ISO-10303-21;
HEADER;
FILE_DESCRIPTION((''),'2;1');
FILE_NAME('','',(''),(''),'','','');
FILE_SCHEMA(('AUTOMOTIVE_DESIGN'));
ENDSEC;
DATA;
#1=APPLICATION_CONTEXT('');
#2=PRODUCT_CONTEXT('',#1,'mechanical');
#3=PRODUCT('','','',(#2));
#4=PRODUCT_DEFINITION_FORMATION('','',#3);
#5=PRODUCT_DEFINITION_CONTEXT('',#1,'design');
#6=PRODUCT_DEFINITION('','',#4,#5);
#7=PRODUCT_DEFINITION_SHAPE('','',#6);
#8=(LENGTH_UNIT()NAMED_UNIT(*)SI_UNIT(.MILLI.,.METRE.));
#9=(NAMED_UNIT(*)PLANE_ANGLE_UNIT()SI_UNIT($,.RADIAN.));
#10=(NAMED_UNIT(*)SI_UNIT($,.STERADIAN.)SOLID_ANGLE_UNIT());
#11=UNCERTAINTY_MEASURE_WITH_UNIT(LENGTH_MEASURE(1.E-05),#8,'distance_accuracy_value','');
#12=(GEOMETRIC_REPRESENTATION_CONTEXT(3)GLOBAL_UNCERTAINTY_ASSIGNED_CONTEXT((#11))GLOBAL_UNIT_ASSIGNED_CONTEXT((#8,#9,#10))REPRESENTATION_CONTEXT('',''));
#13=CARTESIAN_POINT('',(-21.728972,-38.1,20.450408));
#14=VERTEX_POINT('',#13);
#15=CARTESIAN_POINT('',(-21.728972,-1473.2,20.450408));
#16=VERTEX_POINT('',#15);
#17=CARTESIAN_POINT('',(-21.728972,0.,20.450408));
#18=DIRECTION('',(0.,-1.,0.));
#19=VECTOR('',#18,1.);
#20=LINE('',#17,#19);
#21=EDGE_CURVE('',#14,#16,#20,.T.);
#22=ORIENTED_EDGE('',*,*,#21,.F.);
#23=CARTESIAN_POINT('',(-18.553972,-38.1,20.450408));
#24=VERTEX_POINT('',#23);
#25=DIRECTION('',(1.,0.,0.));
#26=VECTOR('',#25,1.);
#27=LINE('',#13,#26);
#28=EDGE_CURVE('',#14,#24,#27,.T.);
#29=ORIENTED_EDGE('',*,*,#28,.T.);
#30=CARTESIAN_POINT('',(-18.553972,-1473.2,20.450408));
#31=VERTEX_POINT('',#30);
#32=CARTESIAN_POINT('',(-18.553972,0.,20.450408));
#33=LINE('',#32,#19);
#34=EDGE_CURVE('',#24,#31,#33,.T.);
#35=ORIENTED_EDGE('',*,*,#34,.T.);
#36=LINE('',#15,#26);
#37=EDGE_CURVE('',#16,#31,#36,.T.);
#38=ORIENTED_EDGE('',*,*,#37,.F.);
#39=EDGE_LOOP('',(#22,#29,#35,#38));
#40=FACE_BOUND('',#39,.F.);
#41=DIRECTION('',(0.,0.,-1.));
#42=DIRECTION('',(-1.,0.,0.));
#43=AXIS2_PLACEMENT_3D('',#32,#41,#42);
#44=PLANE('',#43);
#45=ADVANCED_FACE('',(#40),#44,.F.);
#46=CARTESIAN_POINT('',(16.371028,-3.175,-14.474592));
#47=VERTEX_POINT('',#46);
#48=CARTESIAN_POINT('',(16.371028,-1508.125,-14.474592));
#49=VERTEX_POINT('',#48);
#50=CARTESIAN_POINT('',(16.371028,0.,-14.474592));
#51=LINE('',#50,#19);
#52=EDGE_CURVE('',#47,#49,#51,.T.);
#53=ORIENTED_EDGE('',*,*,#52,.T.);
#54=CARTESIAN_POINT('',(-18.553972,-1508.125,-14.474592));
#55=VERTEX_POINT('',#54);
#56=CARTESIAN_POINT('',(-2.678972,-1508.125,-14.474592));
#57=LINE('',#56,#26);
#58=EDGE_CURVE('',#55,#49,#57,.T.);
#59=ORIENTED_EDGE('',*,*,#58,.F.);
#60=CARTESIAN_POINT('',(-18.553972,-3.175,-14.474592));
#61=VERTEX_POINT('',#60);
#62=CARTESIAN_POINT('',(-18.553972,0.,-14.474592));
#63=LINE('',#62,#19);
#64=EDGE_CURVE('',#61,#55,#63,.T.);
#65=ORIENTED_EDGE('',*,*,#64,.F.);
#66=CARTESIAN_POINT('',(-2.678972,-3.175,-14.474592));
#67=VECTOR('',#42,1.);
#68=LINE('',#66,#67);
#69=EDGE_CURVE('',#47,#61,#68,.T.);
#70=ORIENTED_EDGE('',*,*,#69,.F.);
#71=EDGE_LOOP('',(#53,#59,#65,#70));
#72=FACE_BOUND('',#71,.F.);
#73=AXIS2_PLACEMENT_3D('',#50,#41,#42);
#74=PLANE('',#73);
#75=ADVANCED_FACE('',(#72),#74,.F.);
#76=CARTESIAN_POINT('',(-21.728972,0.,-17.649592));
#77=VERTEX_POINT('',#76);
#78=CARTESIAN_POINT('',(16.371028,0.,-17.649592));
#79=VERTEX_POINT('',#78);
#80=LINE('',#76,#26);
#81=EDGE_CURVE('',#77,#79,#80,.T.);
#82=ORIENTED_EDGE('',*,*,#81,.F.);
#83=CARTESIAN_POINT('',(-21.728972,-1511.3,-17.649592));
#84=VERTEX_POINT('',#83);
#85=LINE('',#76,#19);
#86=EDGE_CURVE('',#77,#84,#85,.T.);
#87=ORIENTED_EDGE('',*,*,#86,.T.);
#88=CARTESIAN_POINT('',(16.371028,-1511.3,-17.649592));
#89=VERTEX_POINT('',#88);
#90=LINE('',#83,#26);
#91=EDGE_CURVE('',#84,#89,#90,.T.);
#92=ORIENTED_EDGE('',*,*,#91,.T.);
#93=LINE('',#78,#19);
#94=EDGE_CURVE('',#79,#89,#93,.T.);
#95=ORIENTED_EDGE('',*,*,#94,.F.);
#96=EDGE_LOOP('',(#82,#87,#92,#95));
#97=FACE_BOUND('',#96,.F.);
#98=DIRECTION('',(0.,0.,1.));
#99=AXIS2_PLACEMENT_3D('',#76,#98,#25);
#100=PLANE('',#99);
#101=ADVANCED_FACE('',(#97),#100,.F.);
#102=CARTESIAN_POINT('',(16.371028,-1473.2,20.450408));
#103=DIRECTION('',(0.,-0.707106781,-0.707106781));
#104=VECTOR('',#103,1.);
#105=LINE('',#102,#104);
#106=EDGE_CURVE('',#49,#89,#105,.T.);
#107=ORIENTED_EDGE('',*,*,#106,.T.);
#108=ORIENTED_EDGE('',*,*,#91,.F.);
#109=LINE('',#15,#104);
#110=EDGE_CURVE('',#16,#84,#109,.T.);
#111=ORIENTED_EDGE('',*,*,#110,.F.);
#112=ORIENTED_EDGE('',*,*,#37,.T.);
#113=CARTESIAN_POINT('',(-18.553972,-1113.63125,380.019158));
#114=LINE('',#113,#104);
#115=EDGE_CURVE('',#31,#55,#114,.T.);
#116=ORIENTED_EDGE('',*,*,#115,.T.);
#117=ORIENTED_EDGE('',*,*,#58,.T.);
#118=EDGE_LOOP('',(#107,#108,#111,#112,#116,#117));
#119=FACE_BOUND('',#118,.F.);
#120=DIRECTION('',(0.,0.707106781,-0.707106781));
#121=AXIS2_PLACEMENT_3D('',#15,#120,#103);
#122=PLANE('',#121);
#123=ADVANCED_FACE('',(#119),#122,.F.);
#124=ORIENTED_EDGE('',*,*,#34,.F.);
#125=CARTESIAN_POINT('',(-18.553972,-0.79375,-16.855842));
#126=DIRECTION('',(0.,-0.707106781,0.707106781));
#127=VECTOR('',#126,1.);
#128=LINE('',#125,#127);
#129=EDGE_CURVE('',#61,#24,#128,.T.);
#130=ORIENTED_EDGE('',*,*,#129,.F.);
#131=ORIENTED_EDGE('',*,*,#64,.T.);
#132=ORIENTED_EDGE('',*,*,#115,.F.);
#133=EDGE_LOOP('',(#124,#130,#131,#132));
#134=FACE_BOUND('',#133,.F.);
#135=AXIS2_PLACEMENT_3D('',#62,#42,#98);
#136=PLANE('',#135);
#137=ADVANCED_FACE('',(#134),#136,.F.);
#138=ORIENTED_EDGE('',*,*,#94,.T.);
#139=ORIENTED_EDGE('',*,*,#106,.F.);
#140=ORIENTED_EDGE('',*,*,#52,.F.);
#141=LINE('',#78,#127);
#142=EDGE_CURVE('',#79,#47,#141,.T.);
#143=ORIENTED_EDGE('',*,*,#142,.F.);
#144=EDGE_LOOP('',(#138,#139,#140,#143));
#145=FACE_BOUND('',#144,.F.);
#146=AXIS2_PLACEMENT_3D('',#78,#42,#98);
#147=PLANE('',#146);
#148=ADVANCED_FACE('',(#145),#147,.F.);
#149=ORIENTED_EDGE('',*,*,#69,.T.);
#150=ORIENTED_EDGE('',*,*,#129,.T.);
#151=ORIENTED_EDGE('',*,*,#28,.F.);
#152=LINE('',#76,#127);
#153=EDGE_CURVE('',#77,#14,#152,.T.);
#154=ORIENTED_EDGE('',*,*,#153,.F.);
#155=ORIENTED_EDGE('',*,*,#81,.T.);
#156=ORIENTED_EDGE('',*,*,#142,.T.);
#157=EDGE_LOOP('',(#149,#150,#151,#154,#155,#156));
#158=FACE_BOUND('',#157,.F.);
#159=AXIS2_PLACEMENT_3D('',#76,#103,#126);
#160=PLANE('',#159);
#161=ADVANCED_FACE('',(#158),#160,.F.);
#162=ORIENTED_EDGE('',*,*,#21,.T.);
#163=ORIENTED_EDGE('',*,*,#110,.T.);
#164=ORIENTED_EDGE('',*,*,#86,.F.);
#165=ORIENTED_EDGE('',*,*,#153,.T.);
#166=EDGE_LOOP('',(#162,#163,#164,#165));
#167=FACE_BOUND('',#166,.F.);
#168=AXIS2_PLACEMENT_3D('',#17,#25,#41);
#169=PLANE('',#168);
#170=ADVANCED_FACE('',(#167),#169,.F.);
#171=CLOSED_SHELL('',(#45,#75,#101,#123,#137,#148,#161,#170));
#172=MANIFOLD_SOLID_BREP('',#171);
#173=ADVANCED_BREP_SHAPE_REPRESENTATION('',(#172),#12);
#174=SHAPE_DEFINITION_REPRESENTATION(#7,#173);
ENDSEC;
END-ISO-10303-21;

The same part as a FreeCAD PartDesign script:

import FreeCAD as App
import Part
import Sketcher

V = App.Vector
Q = App.Units.Quantity

doc = App.newDocument("Part")
body = doc.addObject("PartDesign::Body", "Body")

# Sketch on XZ plane
sketch1 = body.newObject("Sketcher::SketchObject", "Sketch")
sketch1.AttachmentSupport = (doc.getObject("XZ_Plane"), [""])
sketch1.MapMode = "FlatFace"
sketch1.addGeometry([
    Part.LineSegment(V(-18.6, 20.5, 0), V(-21.7, 20.5, 0)),  # 0
    Part.LineSegment(V(-21.7, 20.5, 0), V(-21.7, -17.6, 0)),  # 1
    Part.LineSegment(V(-21.7, -17.6, 0), V(16.4, -17.6, 0)),  # 2
    Part.LineSegment(V(16.4, -17.6, 0), V(16.4, -14.5, 0)),  # 3
    Part.LineSegment(V(16.4, -14.5, 0), V(-18.6, -14.5, 0)),  # 4
    Part.LineSegment(V(-18.6, -14.5, 0), V(-18.6, 20.5, 0)),  # 5
], False)
sketch1.addConstraint([
    Sketcher.Constraint("Coincident", 0, 2, 1, 1),
    Sketcher.Constraint("Coincident", 1, 2, 2, 1),
    Sketcher.Constraint("Coincident", 2, 2, 3, 1),
    Sketcher.Constraint("Coincident", 3, 2, 4, 1),
    Sketcher.Constraint("Coincident", 4, 2, 5, 1),
    Sketcher.Constraint("Coincident", 5, 2, 0, 1),
    Sketcher.Constraint("Horizontal", 0),
    Sketcher.Constraint("Vertical", 1),
    Sketcher.Constraint("Horizontal", 2),
    Sketcher.Constraint("Vertical", 3),
    Sketcher.Constraint("Horizontal", 4),
    Sketcher.Constraint("Vertical", 5),
    Sketcher.Constraint("Equal", 2, 1),
    Sketcher.Constraint("Equal", 0, 3),
    Sketcher.Constraint("DistanceX", 2, 1, 2, 2, Q("1.5 in")),
    Sketcher.Constraint("DistanceX", 0, 2, 0, 1, Q("0.125 in")),
    Sketcher.Constraint("DistanceX", 0, 2, -1, 1, 21.728972),
    Sketcher.Constraint("DistanceY", 1, 2, -1, 1, 17.649592),
])
pad1 = body.newObject("PartDesign::Pad", "Pad")
pad1.Profile = sketch1
pad1.Length = Q("59.5 in")

# Sketch on YZ plane
sketch2 = body.newObject("Sketcher::SketchObject", "Sketch001")
sketch2.AttachmentSupport = (doc.getObject("YZ_Plane"), [""])
sketch2.MapMode = "FlatFace"
sketch2.AttachmentOffset = App.Placement(V(0, 0, -21.728972), App.Rotation())
sketch2.addGeometry([
    Part.LineSegment(V(-1473, 20, 0), V(-1511, -18, 0)),  # 0
    Part.LineSegment(V(-1511, -18, 0), V(-1511, 20, 0)),  # 1
    Part.LineSegment(V(-1511, 20, 0), V(-1473, 20, 0)),  # 2
    Part.LineSegment(V(0, 20, 0), V(0, -18, 0)),  # 3
    Part.LineSegment(V(0, -18, 0), V(-38, 20, 0)),  # 4
    Part.LineSegment(V(-38, 20, 0), V(0, 20, 0)),  # 5
], False)
sketch2.addConstraint([
    Sketcher.Constraint("Coincident", 0, 2, 1, 1),
    Sketcher.Constraint("Coincident", 1, 2, 2, 1),
    Sketcher.Constraint("Coincident", 2, 2, 0, 1),
    Sketcher.Constraint("Coincident", 3, 2, 4, 1),
    Sketcher.Constraint("Coincident", 4, 2, 5, 1),
    Sketcher.Constraint("Coincident", 5, 2, 3, 1),
    Sketcher.Constraint("Vertical", 1),
    Sketcher.Constraint("Horizontal", 2),
    Sketcher.Constraint("Vertical", 3),
    Sketcher.Constraint("Horizontal", 5),
    Sketcher.Constraint("PointOnObject", 3, 2, -2),
    Sketcher.Constraint("Perpendicular", 0, 4),
    Sketcher.Constraint("Horizontal", 0, 2, 3, 2),
    Sketcher.Constraint("Horizontal", 2, 2, 4, 2),
    Sketcher.Constraint("Equal", 2, 5),
    Sketcher.Constraint("DistanceX", 2, 1, 2, 2, Q("1.5 in")),
    Sketcher.Constraint("DistanceX", 2, 2, -1, 1, Q("58 in")),
    Sketcher.Constraint("DistanceY", 0, 2, -1, 1, 17.649592),
])
pocket1 = body.newObject("PartDesign::Pocket", "Pocket")
pocket1.Profile = sketch2
pocket1.Length = Q("1.5 in")
pocket1.Reversed = True

doc.recompute()
